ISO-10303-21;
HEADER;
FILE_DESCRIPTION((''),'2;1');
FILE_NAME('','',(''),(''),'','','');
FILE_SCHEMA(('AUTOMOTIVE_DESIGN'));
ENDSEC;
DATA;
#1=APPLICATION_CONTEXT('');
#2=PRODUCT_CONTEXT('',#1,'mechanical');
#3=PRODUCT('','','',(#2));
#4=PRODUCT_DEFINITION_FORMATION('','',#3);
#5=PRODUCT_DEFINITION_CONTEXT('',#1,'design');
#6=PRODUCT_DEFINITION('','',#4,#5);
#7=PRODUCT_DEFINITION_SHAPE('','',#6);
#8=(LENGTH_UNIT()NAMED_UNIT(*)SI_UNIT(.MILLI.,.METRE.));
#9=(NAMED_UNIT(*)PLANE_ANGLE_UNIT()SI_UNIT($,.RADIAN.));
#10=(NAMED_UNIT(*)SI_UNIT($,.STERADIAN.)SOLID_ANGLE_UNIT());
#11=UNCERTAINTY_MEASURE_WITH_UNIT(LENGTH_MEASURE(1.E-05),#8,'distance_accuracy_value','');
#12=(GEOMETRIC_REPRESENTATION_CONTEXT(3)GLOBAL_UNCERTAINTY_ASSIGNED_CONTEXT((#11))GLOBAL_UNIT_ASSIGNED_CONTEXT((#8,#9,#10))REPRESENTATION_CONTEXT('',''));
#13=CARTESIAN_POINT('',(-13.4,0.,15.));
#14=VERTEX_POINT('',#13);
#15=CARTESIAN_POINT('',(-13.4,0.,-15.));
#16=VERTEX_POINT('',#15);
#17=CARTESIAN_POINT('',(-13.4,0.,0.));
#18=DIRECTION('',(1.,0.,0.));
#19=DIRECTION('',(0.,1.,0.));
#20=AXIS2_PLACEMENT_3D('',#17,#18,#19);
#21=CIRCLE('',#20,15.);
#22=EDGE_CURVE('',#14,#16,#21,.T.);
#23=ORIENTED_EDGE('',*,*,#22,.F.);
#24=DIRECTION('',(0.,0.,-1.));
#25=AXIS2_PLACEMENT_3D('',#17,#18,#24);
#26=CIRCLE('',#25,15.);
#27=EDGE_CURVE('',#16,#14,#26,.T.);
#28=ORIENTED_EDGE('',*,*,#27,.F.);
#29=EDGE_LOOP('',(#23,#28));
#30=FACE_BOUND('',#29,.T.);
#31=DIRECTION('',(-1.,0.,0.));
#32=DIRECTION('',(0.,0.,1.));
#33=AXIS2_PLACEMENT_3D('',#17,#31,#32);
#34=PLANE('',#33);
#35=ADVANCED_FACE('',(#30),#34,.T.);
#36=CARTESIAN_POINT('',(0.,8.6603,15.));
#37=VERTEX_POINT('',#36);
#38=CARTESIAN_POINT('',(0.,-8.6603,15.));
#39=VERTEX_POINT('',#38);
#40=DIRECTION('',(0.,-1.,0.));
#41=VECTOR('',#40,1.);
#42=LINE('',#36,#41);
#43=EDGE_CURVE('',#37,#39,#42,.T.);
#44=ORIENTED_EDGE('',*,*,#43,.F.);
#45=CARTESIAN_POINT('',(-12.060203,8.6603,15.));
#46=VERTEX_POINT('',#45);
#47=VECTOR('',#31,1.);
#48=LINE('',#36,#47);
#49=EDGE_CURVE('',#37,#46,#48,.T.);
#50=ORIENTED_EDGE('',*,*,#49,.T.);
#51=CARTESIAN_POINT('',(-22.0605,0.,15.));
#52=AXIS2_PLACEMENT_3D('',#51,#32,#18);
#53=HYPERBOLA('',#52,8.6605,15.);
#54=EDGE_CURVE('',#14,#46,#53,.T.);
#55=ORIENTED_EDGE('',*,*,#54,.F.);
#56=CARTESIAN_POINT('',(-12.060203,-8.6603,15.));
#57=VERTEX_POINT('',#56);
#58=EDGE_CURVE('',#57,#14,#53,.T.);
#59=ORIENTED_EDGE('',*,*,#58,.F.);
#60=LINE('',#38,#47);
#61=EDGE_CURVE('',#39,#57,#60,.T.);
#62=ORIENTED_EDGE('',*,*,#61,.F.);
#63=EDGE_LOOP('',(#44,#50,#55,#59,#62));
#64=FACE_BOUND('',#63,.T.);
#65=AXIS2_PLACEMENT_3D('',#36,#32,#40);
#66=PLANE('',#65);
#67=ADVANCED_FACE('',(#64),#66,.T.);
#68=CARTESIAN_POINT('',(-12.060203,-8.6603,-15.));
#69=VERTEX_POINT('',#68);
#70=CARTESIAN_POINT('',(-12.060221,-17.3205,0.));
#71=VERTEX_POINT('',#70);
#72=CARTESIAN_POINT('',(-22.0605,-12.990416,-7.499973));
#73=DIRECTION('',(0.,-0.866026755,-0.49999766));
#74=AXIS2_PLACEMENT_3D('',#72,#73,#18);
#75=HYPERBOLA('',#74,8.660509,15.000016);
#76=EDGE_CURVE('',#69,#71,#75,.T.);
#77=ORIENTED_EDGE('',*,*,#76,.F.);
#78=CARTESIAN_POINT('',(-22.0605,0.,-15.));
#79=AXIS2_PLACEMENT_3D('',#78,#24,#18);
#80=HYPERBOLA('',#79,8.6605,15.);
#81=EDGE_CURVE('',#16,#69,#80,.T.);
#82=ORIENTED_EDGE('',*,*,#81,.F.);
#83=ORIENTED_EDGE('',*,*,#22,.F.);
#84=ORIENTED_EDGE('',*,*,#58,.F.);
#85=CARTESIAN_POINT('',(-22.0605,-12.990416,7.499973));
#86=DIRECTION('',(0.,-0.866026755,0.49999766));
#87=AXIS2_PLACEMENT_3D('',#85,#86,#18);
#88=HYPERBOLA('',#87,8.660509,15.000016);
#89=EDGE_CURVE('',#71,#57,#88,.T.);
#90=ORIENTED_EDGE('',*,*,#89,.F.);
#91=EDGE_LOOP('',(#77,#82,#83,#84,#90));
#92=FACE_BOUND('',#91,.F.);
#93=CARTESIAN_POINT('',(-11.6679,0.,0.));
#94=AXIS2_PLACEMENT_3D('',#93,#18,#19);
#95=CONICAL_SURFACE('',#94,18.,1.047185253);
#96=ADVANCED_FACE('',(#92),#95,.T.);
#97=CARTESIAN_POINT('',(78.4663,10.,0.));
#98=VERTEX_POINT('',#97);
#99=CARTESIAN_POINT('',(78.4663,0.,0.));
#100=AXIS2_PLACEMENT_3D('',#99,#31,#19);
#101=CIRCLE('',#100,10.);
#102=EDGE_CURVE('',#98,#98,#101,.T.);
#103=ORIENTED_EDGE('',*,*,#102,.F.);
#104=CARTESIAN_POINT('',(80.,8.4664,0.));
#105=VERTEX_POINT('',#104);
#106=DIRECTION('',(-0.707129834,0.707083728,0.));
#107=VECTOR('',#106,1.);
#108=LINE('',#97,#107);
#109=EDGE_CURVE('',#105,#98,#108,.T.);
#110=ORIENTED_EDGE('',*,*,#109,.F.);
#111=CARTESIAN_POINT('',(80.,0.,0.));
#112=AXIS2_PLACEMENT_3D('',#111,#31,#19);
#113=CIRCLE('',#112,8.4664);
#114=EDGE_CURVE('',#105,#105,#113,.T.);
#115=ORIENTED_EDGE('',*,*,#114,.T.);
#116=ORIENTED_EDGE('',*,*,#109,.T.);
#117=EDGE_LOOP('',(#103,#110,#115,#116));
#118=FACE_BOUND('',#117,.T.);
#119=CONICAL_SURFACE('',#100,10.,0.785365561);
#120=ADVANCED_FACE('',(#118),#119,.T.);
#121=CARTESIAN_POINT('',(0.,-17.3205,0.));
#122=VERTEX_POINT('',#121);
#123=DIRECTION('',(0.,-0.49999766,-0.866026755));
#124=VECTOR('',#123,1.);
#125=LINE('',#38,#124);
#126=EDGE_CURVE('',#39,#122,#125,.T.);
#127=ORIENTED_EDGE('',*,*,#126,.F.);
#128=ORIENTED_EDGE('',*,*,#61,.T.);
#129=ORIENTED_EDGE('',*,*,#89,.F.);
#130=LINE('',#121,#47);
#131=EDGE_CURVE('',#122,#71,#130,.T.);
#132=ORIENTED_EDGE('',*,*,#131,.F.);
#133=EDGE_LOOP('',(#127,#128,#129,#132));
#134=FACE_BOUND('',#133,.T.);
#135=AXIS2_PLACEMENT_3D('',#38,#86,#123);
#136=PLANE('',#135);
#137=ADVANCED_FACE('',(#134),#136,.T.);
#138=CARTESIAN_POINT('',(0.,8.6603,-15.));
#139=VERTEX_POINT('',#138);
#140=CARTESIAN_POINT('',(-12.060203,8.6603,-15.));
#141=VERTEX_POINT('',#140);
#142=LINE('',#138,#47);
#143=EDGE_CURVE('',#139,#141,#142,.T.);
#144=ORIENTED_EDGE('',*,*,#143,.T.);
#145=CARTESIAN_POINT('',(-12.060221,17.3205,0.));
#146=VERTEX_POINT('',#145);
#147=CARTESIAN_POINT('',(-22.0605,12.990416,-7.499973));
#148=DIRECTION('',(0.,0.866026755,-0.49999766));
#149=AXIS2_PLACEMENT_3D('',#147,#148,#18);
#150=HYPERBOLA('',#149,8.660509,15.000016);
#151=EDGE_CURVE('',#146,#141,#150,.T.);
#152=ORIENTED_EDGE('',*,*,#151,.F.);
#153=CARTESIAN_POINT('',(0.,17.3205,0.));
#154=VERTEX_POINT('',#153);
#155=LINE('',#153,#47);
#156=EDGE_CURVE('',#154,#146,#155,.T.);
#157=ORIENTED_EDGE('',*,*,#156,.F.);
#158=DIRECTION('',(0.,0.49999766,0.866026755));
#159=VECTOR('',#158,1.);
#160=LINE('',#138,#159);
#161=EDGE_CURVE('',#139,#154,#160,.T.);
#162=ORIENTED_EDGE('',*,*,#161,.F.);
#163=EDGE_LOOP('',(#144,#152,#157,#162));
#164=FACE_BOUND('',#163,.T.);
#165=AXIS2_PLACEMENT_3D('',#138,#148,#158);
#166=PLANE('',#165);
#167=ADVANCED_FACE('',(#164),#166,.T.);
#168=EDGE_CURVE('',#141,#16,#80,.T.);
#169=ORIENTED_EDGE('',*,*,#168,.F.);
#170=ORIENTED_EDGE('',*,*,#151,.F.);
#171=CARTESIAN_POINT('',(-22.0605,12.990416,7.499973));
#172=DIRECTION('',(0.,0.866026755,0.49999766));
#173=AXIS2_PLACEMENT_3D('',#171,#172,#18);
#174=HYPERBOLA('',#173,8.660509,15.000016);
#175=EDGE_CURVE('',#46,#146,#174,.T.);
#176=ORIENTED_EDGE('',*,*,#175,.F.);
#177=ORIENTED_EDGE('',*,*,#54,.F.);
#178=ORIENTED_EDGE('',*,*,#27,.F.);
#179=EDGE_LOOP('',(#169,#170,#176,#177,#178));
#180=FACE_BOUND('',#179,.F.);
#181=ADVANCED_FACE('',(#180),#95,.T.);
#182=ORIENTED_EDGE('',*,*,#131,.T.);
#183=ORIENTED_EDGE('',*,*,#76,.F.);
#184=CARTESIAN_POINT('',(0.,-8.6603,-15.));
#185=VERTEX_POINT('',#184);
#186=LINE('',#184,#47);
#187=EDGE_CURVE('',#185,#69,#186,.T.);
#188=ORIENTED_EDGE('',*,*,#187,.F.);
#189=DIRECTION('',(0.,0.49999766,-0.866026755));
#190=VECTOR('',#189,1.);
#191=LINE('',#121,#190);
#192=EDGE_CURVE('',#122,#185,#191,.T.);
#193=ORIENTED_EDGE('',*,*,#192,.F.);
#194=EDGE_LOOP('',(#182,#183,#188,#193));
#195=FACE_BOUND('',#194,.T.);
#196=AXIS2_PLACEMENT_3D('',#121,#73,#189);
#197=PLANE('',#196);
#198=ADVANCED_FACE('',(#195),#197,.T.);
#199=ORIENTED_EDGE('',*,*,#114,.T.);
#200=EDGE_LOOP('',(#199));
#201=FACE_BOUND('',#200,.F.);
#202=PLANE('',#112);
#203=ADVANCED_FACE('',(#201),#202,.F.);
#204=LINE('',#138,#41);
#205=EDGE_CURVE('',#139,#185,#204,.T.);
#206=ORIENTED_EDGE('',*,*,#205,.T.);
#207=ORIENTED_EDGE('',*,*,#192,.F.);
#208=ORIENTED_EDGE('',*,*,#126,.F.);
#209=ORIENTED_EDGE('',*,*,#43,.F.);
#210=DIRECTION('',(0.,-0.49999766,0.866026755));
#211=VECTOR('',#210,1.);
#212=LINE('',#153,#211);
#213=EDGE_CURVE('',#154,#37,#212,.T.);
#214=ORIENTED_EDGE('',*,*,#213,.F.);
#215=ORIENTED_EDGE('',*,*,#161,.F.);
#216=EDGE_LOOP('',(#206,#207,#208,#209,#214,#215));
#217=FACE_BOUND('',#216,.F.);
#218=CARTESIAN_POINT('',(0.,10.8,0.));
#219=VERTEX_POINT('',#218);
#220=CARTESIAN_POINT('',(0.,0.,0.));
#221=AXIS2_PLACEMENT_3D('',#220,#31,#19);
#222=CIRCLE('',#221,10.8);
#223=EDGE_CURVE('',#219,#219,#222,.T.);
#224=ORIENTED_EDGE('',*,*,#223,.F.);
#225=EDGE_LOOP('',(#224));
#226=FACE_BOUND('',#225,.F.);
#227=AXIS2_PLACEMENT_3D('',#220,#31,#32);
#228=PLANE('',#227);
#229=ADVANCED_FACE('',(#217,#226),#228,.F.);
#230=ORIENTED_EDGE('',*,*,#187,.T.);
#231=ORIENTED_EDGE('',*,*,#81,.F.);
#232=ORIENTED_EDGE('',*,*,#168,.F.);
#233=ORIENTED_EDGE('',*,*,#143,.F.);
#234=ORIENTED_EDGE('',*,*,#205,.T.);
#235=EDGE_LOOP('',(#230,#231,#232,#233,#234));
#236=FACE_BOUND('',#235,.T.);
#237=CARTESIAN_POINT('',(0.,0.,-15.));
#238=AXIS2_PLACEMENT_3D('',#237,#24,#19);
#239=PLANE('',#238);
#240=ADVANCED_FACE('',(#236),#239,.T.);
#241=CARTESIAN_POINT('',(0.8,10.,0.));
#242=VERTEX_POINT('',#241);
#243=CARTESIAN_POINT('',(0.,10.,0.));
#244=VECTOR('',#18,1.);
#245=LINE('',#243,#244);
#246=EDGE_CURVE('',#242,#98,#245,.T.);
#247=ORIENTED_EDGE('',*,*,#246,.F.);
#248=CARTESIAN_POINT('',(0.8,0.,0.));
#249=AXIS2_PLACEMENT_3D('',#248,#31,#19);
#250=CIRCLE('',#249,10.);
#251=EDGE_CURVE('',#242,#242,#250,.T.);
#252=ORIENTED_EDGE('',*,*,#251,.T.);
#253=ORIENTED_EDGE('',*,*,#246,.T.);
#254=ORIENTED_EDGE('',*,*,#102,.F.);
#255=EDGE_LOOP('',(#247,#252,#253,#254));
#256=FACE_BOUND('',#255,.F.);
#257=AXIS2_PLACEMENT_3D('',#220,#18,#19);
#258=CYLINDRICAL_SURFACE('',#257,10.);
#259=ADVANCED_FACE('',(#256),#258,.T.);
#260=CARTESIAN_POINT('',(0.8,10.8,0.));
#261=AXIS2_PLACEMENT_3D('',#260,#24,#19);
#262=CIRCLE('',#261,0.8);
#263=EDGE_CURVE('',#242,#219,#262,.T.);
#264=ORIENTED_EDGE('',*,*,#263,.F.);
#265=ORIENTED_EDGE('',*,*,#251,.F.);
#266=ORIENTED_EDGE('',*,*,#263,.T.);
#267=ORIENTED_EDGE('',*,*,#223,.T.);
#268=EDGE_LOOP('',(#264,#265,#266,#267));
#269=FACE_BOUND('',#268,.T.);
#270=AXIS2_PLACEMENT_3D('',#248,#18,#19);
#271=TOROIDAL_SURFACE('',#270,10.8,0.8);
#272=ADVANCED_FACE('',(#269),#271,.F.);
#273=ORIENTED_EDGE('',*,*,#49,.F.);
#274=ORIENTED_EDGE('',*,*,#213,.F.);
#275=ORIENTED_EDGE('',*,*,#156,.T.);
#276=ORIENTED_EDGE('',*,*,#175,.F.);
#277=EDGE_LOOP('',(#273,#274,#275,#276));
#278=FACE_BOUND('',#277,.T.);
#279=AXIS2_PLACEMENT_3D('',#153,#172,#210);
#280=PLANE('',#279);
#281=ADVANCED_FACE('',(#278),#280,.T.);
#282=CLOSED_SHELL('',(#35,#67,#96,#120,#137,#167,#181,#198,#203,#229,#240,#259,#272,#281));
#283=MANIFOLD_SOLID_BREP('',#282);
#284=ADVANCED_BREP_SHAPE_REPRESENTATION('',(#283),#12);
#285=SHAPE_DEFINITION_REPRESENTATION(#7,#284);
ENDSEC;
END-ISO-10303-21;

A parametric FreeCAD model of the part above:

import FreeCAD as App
import Part
import Sketcher

V = App.Vector
Q = App.Units.Quantity


def edges_at(feature, points):
    """Names of the edges that pass closest to the given points."""
    edges = feature.Shape.Edges
    near = lambda p: min(range(len(edges)), key=lambda i: edges[i].distToShape(Part.Vertex(*p))[0])
    return sorted({f"Edge{near(p) + 1}" for p in points})


def add_polygon(sketch, points):
    """Adds a closed chain of lines whose ends are joined by coincident constraints."""
    first, n = sketch.GeometryCount, len(points)
    for a, b in zip(points, points[1:] + points[:1]):
        sketch.addGeometry(Part.LineSegment(App.Vector(*a, 0), App.Vector(*b, 0)), False)
    for i in range(n):
        sketch.addConstraint(Sketcher.Constraint("Coincident", first + i, 2, first + (i + 1) % n, 1))

doc = App.newDocument("Part")
body = doc.addObject("PartDesign::Body", "Body")

# Sketch on XY plane
sketch1 = body.newObject("Sketcher::SketchObject", "Sketch")
sketch1.AttachmentSupport = (doc.getObject("XY_Plane"), [""])
sketch1.MapMode = "FlatFace"
add_polygon(sketch1, [(80, 10), (0, 10), (0, 0), (80, 0)])  # lines 0-3
sketch1.addConstraint(Sketcher.Constraint("Horizontal", 0))
sketch1.addConstraint(Sketcher.Constraint("Vertical", 1))
sketch1.addConstraint(Sketcher.Constraint("Horizontal", 2))
sketch1.addConstraint(Sketcher.Constraint("Vertical", 3))
sketch1.addConstraint(Sketcher.Constraint("Coincident", 1, 2, -1, 1))
sketch1.addConstraint(Sketcher.Constraint("DistanceX", 0, 2, 0, 1, Q("80 mm")))
sketch1.addConstraint(Sketcher.Constraint("DistanceY", 1, 2, 1, 1, Q("10 mm")))
revolution = body.newObject("PartDesign::Revolution", "Revolution")
revolution.Profile = sketch1
revolution.ReferenceAxis = (sketch1, ["H_Axis"])
revolution.Angle = 360

# Sketch on YZ plane
sketch2 = body.newObject("Sketcher::SketchObject", "Sketch001")
sketch2.AttachmentSupport = (doc.getObject("YZ_Plane"), [""])
sketch2.MapMode = "FlatFace"
add_polygon(sketch2, [(9, -15), (-9, -15), (-17, 0), (-9, 15), (9, 15), (17, 0)])  # lines 0-5
sketch2.addConstraint(Sketcher.Constraint("Horizontal", 0))
sketch2.addConstraint(Sketcher.Constraint("Horizontal", 3))
sketch2.addConstraint(Sketcher.Constraint("Symmetric", 0, 2, 3, 2, -1, 1))
sketch2.addConstraint(Sketcher.Constraint("Symmetric", 1, 2, 4, 2, -1, 1))
sketch2.addConstraint(Sketcher.Constraint("PointOnObject", 1, 2, -1))
sketch2.addConstraint(Sketcher.Constraint("Parallel", 2, 5))
sketch2.addConstraint(Sketcher.Constraint("Vertical", 0, 2, 2, 2))
sketch2.addConstraint(Sketcher.Constraint("DistanceY", 0, 2, 2, 2, Q("30 mm")))
sketch2.addConstraint(Sketcher.Constraint("Angle", 1, Q("119.9998 deg")))
sketch2.addConstraint(Sketcher.Constraint("DistanceX", 0, 2, 0, 1, Q("17.3206 mm")))
pad1 = body.newObject("PartDesign::Pad", "Pad")
pad1.Profile = sketch2
pad1.Length = 13.4
pad1.Reversed = True

# Sketch on XY plane
sketch3 = body.newObject("Sketcher::SketchObject", "Sketch002")
sketch3.AttachmentSupport = (doc.getObject("XY_Plane"), [""])
sketch3.MapMode = "FlatFace"
add_polygon(sketch3, [(-13.4, 15), (-11.7, 18), (-13.4, 18)])  # lines 0-2
sketch3.addConstraint(Sketcher.Constraint("Horizontal", 1))
sketch3.addConstraint(Sketcher.Constraint("Vertical", 2))
sketch3.addConstraint(Sketcher.Constraint("DistanceX", 1, 2, -1, 1, Q("13.4 mm")))
sketch3.addConstraint(Sketcher.Constraint("DistanceY", 2, 2, 2, 1, Q("3 mm")))
sketch3.addConstraint(Sketcher.Constraint("Angle", 0, Q("59.9993 deg")))
sketch3.addConstraint(Sketcher.Constraint("DistanceY", -1, 1, 0, 2, Q("18 mm")))
groove = body.newObject("PartDesign::Groove", "Groove")
groove.Profile = sketch3
groove.ReferenceAxis = (sketch3, ["H_Axis"])
groove.Angle = 360
doc.recompute()

chamfer = body.newObject("PartDesign::Chamfer", "Chamfer")
chamfer.Base = (groove, edges_at(groove, [(80, -10, 0)]))
chamfer.ChamferType = "Two distances"
chamfer.Size = 1.5336
chamfer.Size2 = 1.5337
doc.recompute()

fillet = body.newObject("PartDesign::Fillet", "Fillet")
fillet.Base = (chamfer, edges_at(chamfer, [(0, -10, 0)]))
fillet.Radius = 0.8

doc.recompute()
